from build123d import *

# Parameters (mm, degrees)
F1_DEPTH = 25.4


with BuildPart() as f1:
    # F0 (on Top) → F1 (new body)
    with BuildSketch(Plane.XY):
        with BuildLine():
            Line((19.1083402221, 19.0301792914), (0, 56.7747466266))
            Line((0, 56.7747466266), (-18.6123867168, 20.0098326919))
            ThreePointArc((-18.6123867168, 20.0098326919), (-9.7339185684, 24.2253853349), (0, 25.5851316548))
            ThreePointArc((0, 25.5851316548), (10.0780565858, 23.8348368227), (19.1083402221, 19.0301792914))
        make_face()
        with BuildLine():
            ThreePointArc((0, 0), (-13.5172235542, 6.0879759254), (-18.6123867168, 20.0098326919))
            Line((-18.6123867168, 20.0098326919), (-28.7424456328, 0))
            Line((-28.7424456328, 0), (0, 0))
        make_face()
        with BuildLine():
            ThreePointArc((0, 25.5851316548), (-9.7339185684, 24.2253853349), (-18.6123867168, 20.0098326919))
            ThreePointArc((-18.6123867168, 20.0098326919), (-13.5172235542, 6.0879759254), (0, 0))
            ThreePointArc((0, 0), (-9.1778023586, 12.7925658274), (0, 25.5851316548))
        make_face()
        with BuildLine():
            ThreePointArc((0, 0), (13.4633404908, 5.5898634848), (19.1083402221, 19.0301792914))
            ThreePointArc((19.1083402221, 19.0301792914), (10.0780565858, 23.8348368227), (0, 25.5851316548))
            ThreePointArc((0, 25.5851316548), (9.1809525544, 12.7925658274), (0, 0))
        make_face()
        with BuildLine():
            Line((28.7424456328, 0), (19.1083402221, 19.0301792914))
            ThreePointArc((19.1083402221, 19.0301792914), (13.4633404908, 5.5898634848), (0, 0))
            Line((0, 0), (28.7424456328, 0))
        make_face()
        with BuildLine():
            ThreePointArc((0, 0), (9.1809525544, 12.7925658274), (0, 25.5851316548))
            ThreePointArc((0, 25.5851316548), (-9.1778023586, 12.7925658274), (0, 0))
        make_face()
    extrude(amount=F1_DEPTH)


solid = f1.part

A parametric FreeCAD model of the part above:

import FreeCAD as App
import Part
import Sketcher
Q = App.Units.Quantity

doc = App.newDocument("Part")
body = doc.addObject("PartDesign::Body", "Body")

# Sketch on XY plane
sketch1 = body.newObject("Sketcher::SketchObject", "Sketch")
sketch1.AttachmentSupport = (doc.getObject("XY_Plane"), [""])
sketch1.MapMode = "FlatFace"
sketch1.addGeometry([
    Part.LineSegment(App.Vector(-29, 0, 0), App.Vector(29, 0, 0)),
    Part.LineSegment(App.Vector(29, 0, 0), App.Vector(19, 19, 0)),
    Part.LineSegment(App.Vector(19, 19, 0), App.Vector(0, 57, 0)),
    Part.LineSegment(App.Vector(0, 57, 0), App.Vector(-29, 0, 0)),
], False)
sketch1.addConstraint([
    Sketcher.Constraint("Coincident", 0, 2, 1, 1),
    Sketcher.Constraint("Coincident", 1, 2, 2, 1),
    Sketcher.Constraint("Coincident", 2, 2, 3, 1),
    Sketcher.Constraint("Coincident", 3, 2, 0, 1),
    Sketcher.Constraint("Horizontal", 0),
    Sketcher.Constraint("Symmetric", 0, 2, 3, 2, -1, 1),
    Sketcher.Constraint("PointOnObject", 2, 2, -2),
    Sketcher.Constraint("Parallel", 1, 2),
    Sketcher.Constraint("DistanceX", 0, 1, 0, 2, 57.484891),
    Sketcher.Constraint("Distance", 1, 21.329878),
    Sketcher.Constraint("DistanceX", -1, 1, 1, 2, 19.10834),
])
pad1 = body.newObject("PartDesign::Pad", "Pad")
pad1.Profile = sketch1
pad1.Length = Q("1 in")

doc.recompute()
